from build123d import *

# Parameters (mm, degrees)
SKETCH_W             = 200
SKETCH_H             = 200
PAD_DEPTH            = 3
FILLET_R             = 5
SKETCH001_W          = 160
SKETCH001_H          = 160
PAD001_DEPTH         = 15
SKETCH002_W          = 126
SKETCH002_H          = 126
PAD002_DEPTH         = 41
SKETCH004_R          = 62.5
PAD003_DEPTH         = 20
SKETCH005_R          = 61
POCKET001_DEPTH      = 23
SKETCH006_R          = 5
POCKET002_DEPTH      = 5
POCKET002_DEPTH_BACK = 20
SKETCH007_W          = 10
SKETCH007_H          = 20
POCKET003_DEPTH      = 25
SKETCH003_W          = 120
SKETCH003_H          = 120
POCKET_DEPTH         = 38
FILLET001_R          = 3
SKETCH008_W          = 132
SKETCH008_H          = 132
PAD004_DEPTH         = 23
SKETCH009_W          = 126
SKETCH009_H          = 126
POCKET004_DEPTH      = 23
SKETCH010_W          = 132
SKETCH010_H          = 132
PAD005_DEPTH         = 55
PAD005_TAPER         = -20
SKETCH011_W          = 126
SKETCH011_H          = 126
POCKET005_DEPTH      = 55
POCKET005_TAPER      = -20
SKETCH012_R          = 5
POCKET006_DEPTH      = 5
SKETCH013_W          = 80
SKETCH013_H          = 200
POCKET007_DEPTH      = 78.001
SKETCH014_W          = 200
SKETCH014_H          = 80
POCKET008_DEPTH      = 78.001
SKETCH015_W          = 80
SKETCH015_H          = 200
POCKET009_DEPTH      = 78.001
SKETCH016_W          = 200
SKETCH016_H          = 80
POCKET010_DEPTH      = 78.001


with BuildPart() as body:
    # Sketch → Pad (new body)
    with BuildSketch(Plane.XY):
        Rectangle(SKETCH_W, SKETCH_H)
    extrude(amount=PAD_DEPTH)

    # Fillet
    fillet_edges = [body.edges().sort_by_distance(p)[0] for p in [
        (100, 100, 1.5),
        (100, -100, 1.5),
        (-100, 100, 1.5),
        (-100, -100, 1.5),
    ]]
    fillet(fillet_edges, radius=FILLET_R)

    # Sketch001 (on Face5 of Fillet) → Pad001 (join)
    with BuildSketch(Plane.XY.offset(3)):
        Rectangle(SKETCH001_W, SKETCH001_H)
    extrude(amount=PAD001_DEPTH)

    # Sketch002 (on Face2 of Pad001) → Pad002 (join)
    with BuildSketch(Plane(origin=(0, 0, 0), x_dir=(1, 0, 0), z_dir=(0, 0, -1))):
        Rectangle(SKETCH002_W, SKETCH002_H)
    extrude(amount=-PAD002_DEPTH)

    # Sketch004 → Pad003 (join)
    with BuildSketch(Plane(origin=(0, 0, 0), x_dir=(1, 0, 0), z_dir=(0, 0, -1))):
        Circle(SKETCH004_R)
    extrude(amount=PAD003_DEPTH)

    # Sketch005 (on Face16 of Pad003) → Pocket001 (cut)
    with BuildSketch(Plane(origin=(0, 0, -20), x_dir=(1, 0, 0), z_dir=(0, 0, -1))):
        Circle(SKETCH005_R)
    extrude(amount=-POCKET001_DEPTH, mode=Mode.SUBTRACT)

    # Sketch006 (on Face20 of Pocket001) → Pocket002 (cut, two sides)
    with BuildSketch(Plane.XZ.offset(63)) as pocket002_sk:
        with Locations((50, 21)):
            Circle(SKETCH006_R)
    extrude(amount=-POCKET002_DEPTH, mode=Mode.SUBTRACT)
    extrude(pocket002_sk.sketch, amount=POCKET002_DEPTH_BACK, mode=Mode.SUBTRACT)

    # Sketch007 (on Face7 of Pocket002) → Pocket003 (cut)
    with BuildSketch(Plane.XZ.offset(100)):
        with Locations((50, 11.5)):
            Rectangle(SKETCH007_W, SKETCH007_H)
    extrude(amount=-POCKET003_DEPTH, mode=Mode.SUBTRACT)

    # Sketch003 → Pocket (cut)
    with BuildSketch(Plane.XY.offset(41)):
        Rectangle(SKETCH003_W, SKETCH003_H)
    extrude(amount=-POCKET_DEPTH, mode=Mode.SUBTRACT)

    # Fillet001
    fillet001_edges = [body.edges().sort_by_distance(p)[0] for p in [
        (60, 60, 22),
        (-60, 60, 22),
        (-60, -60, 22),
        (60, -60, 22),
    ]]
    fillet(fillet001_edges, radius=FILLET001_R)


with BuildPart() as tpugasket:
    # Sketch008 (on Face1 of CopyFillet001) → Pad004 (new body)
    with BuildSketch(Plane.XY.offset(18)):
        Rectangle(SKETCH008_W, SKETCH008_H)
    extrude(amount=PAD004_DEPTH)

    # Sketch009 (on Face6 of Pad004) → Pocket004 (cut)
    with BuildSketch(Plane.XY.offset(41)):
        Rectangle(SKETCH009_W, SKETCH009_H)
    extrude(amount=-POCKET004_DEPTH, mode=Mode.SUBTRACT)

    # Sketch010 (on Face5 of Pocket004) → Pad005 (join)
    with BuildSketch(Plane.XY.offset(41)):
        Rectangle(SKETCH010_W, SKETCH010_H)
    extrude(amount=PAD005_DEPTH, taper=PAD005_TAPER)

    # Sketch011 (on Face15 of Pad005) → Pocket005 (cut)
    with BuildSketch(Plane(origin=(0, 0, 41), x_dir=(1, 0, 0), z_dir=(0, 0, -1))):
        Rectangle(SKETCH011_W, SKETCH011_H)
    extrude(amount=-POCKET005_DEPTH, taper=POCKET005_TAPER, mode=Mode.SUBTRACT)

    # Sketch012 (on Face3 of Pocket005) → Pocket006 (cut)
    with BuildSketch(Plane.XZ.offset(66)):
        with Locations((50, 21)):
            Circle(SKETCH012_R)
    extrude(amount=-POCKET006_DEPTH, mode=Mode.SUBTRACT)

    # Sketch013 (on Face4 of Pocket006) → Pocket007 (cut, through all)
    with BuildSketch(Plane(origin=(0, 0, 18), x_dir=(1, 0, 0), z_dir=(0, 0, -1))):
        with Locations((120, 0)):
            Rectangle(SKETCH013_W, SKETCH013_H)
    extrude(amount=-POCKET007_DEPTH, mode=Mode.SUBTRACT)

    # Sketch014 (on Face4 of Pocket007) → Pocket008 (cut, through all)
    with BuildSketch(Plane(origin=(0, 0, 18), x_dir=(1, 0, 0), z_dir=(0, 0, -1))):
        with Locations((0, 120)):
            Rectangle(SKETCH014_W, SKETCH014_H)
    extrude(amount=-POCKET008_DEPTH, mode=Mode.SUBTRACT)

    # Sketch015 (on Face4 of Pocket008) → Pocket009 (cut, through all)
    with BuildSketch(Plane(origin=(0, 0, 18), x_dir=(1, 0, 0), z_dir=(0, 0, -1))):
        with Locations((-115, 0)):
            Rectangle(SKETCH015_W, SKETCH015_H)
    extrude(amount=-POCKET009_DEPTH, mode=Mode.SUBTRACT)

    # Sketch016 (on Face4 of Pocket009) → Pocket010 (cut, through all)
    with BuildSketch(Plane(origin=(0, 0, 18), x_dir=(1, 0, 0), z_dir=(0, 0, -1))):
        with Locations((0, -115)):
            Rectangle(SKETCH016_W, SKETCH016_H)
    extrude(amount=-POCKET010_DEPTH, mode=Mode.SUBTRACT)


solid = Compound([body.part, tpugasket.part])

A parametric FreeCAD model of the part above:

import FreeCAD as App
import Part
import Sketcher

V = App.Vector
Q = App.Units.Quantity


def edges_at(feature, points):
    """Names of the edges that pass closest to the given points."""
    edges = feature.Shape.Edges
    near = lambda p: min(range(len(edges)), key=lambda i: edges[i].distToShape(Part.Vertex(*p))[0])
    return sorted({f"Edge{near(p) + 1}" for p in points})


def add_polygon(sketch, points):
    """Adds a closed chain of lines whose ends are joined by coincident constraints."""
    first, n = sketch.GeometryCount, len(points)
    for a, b in zip(points, points[1:] + points[:1]):
        sketch.addGeometry(Part.LineSegment(App.Vector(*a, 0), App.Vector(*b, 0)), False)
    for i in range(n):
        sketch.addConstraint(Sketcher.Constraint("Coincident", first + i, 2, first + (i + 1) % n, 1))

doc = App.newDocument("Part")
body = doc.addObject("PartDesign::Body", "Body")

sketch1 = body.newObject("Sketcher::SketchObject", "Sketch")
sketch1.AttachmentSupport = (doc.getObject("XY_Plane"), [""])
sketch1.MapMode = "FlatFace"
add_polygon(sketch1, [(-100, 100), (-100, -100), (100, -100), (100, 100)])
sketch1.addConstraint(Sketcher.Constraint("Vertical", 0))
sketch1.addConstraint(Sketcher.Constraint("Horizontal", 1))
sketch1.addConstraint(Sketcher.Constraint("Vertical", 2))
sketch1.addConstraint(Sketcher.Constraint("Horizontal", 3))
sketch1.addConstraint(Sketcher.Constraint("Symmetric", 0, 2, 2, 2, -1, 1))
sketch1.addConstraint(Sketcher.Constraint("Equal", 3, 0))
sketch1.addConstraint(Sketcher.Constraint("DistanceX", 1, 1, 1, 2, Q("200 mm")))
pad1 = body.newObject("PartDesign::Pad", "Pad")
pad1.Profile = sketch1
pad1.Length = 3
doc.recompute()

fillet = body.newObject("PartDesign::Fillet", "Fillet")
fillet.Base = (pad1, edges_at(pad1, [
    (100, 100, 1.5),
    (100, -100, 1.5),
    (-100, 100, 1.5),
    (-100, -100, 1.5),
]))
fillet.Radius = 5

sketch2 = body.newObject("Sketcher::SketchObject", "Sketch001")
sketch2.AttachmentSupport = (doc.getObject("XY_Plane"), [""])
sketch2.MapMode = "FlatFace"
sketch2.AttachmentOffset = App.Placement(V(0, 0, 3), App.Rotation())
add_polygon(sketch2, [(-80, 80), (-80, -80), (80, -80), (80, 80)])
sketch2.addConstraint(Sketcher.Constraint("Vertical", 0))
sketch2.addConstraint(Sketcher.Constraint("Horizontal", 1))
sketch2.addConstraint(Sketcher.Constraint("Vertical", 2))
sketch2.addConstraint(Sketcher.Constraint("Horizontal", 3))
sketch2.addConstraint(Sketcher.Constraint("Symmetric", 0, 2, 2, 2, -1, 1))
sketch2.addConstraint(Sketcher.Constraint("Equal", 3, 0))
sketch2.addConstraint(Sketcher.Constraint("DistanceX", 1, 1, 1, 2, Q("160 mm")))
pad2 = body.newObject("PartDesign::Pad", "Pad001")
pad2.Profile = sketch2
pad2.Length = 15

sketch3 = body.newObject("Sketcher::SketchObject", "Sketch002")
sketch3.AttachmentSupport = (doc.getObject("XY_Plane"), [""])
sketch3.MapMode = "FlatFace"
add_polygon(sketch3, [(-63, -63), (-63, 63), (63, 63), (63, -63)])
sketch3.addConstraint(Sketcher.Constraint("Vertical", 0))
sketch3.addConstraint(Sketcher.Constraint("Horizontal", 1))
sketch3.addConstraint(Sketcher.Constraint("Vertical", 2))
sketch3.addConstraint(Sketcher.Constraint("Horizontal", 3))
sketch3.addConstraint(Sketcher.Constraint("Symmetric", 0, 2, 2, 2, -1, 1))
sketch3.addConstraint(Sketcher.Constraint("Equal", 3, 0))
sketch3.addConstraint(Sketcher.Constraint("DistanceX", 1, 1, 1, 2, Q("126 mm")))
pad3 = body.newObject("PartDesign::Pad", "Pad002")
pad3.Profile = sketch3
pad3.Length = 41

sketch4 = body.newObject("Sketcher::SketchObject", "Sketch003")
sketch4.AttachmentSupport = (doc.getObject("XY_Plane"), [""])
sketch4.MapMode = "FlatFace"
sketch4.addGeometry(Part.Circle(V(0, 0, 0), V(0, 0, 1), 62), False)
sketch4.addConstraint(Sketcher.Constraint("Coincident", 0, 3, -1, 1))
sketch4.addConstraint(Sketcher.Constraint("Diameter", 0, Q("125 mm")))
pad4 = body.newObject("PartDesign::Pad", "Pad003")
pad4.Profile = sketch4
pad4.Length = 20
pad4.Reversed = True

sketch5 = body.newObject("Sketcher::SketchObject", "Sketch004")
sketch5.AttachmentSupport = (doc.getObject("XY_Plane"), [""])
sketch5.MapMode = "FlatFace"
sketch5.AttachmentOffset = App.Placement(V(0, 0, -20), App.Rotation())
sketch5.addGeometry(Part.Circle(V(0, 0, 0), V(0, 0, 1), 61), False)
sketch5.addConstraint(Sketcher.Constraint("Coincident", 0, 3, -1, 1))
sketch5.addConstraint(Sketcher.Constraint("Diameter", 0, Q("122 mm")))
pocket1 = body.newObject("PartDesign::Pocket", "Pocket")
pocket1.Profile = sketch5
pocket1.Length = 23
pocket1.Reversed = True

sketch6 = body.newObject("Sketcher::SketchObject", "Sketch005")
sketch6.AttachmentSupport = (doc.getObject("XZ_Plane"), [""])
sketch6.MapMode = "FlatFace"
sketch6.AttachmentOffset = App.Placement(V(0, 0, 63), App.Rotation())
sketch6.addGeometry(Part.Circle(V(50, 21, 0), V(0, 0, 1), 5), False)
sketch6.addConstraint(Sketcher.Constraint("Diameter", 0, Q("10 mm")))
sketch6.addConstraint(Sketcher.Constraint("DistanceX", -1, 1, 0, 3, Q("50 mm")))
sketch6.addConstraint(Sketcher.Constraint("DistanceY", -1, 1, 0, 3, Q("21 mm")))
pocket2 = body.newObject("PartDesign::Pocket", "Pocket001")
pocket2.Profile = sketch6
pocket2.Type = "TwoLengths"
pocket2.Length = 5
pocket2.Length2 = 20

sketch7 = body.newObject("Sketcher::SketchObject", "Sketch006")
sketch7.AttachmentSupport = (doc.getObject("XZ_Plane"), [""])
sketch7.MapMode = "FlatFace"
sketch7.AttachmentOffset = App.Placement(V(0, 0, 100), App.Rotation())
add_polygon(sketch7, [(45, 22), (45, 2), (55, 2), (55, 22)])
sketch7.addConstraint(Sketcher.Constraint("Vertical", 0))
sketch7.addConstraint(Sketcher.Constraint("Horizontal", 1))
sketch7.addConstraint(Sketcher.Constraint("Vertical", 2))
sketch7.addConstraint(Sketcher.Constraint("Horizontal", 3))
sketch7.addConstraint(Sketcher.Constraint("DistanceX", 1, 1, 1, 2, Q("10 mm")))
sketch7.addConstraint(Sketcher.Constraint("DistanceY", 0, 2, 0, 1, Q("20 mm")))
sketch7.addConstraint(Sketcher.Constraint("DistanceX", -1, 1, 0, 2, Q("45 mm")))
sketch7.addConstraint(Sketcher.Constraint("DistanceY", -1, 1, 0, 2, Q("1.5 mm")))
pocket3 = body.newObject("PartDesign::Pocket", "Pocket002")
pocket3.Profile = sketch7
pocket3.Length = 25

sketch8 = body.newObject("Sketcher::SketchObject", "Sketch007")
sketch8.AttachmentSupport = (doc.getObject("XY_Plane"), [""])
sketch8.MapMode = "FlatFace"
sketch8.AttachmentOffset = App.Placement(V(0, 0, 41), App.Rotation())
add_polygon(sketch8, [(-60, 60), (-60, -60), (60, -60), (60, 60)])
sketch8.addConstraint(Sketcher.Constraint("Vertical", 0))
sketch8.addConstraint(Sketcher.Constraint("Horizontal", 1))
sketch8.addConstraint(Sketcher.Constraint("Vertical", 2))
sketch8.addConstraint(Sketcher.Constraint("Horizontal", 3))
sketch8.addConstraint(Sketcher.Constraint("Symmetric", 0, 2, 2, 2, -1, 1))
sketch8.addConstraint(Sketcher.Constraint("Equal", 3, 0))
sketch8.addConstraint(Sketcher.Constraint("DistanceX", 1, 1, 1, 2, Q("120 mm")))
pocket4 = body.newObject("PartDesign::Pocket", "Pocket003")
pocket4.Profile = sketch8
pocket4.Length = 38
doc.recompute()

fillet2 = body.newObject("PartDesign::Fillet", "Fillet001")
fillet2.Base = (pocket4, edges_at(pocket4, [
    (60, 60, 22),
    (-60, 60, 22),
    (-60, -60, 22),
    (60, -60, 22),
]))
fillet2.Radius = 3
body2 = doc.addObject("PartDesign::Body", "Body001")

sketch9 = body2.newObject("Sketcher::SketchObject", "Sketch008")
sketch9.AttachmentSupport = (doc.getObject("XY_Plane001"), [""])
sketch9.MapMode = "FlatFace"
sketch9.AttachmentOffset = App.Placement(V(0, 0, 18), App.Rotation())
add_polygon(sketch9, [(-66, 66), (-66, -66), (66, -66), (66, 66)])
sketch9.addConstraint(Sketcher.Constraint("Vertical", 0))
sketch9.addConstraint(Sketcher.Constraint("Horizontal", 1))
sketch9.addConstraint(Sketcher.Constraint("Vertical", 2))
sketch9.addConstraint(Sketcher.Constraint("Horizontal", 3))
sketch9.addConstraint(Sketcher.Constraint("Symmetric", 0, 2, 2, 2, -1, 1))
sketch9.addConstraint(Sketcher.Constraint("Equal", 3, 0))
sketch9.addConstraint(Sketcher.Constraint("DistanceX", 1, 1, 1, 2, Q("132 mm")))
pad5 = body2.newObject("PartDesign::Pad", "Pad004")
pad5.Profile = sketch9
pad5.Length = 23

sketch10 = body2.newObject("Sketcher::SketchObject", "Sketch009")
sketch10.AttachmentSupport = (doc.getObject("XY_Plane001"), [""])
sketch10.MapMode = "FlatFace"
sketch10.AttachmentOffset = App.Placement(V(0, 0, 41), App.Rotation())
add_polygon(sketch10, [(-63, 63), (-63, -63), (63, -63), (63, 63)])
sketch10.addConstraint(Sketcher.Constraint("Vertical", 0))
sketch10.addConstraint(Sketcher.Constraint("Horizontal", 1))
sketch10.addConstraint(Sketcher.Constraint("Vertical", 2))
sketch10.addConstraint(Sketcher.Constraint("Horizontal", 3))
sketch10.addConstraint(Sketcher.Constraint("Symmetric", 0, 2, 2, 2, -1, 1))
sketch10.addConstraint(Sketcher.Constraint("Equal", 3, 0))
sketch10.addConstraint(Sketcher.Constraint("DistanceX", 1, 1, 1, 2, Q("126 mm")))
pocket5 = body2.newObject("PartDesign::Pocket", "Pocket004")
pocket5.Profile = sketch10
pocket5.Length = 23

sketch11 = body2.newObject("Sketcher::SketchObject", "Sketch010")
sketch11.AttachmentSupport = (doc.getObject("XY_Plane001"), [""])
sketch11.MapMode = "FlatFace"
sketch11.AttachmentOffset = App.Placement(V(0, 0, 41), App.Rotation())
add_polygon(sketch11, [(-66, 66), (-66, -66), (66, -66), (66, 66)])
sketch11.addConstraint(Sketcher.Constraint("Vertical", 0))
sketch11.addConstraint(Sketcher.Constraint("Horizontal", 1))
sketch11.addConstraint(Sketcher.Constraint("Vertical", 2))
sketch11.addConstraint(Sketcher.Constraint("Horizontal", 3))
sketch11.addConstraint(Sketcher.Constraint("Symmetric", 0, 2, 2, 2, -1, 1))
sketch11.addConstraint(Sketcher.Constraint("Equal", 3, 0))
sketch11.addConstraint(Sketcher.Constraint("DistanceX", 1, 1, 1, 2, Q("132 mm")))
pad6 = body2.newObject("PartDesign::Pad", "Pad005")
pad6.Profile = sketch11
pad6.Length = 55
pad6.TaperAngle = 20

sketch12 = body2.newObject("Sketcher::SketchObject", "Sketch011")
sketch12.AttachmentSupport = (doc.getObject("XY_Plane001"), [""])
sketch12.MapMode = "FlatFace"
sketch12.AttachmentOffset = App.Placement(V(0, 0, 41), App.Rotation())
add_polygon(sketch12, [(-63, -63), (-63, 63), (63, 63), (63, -63)])
sketch12.addConstraint(Sketcher.Constraint("Vertical", 0))
sketch12.addConstraint(Sketcher.Constraint("Horizontal", 1))
sketch12.addConstraint(Sketcher.Constraint("Vertical", 2))
sketch12.addConstraint(Sketcher.Constraint("Horizontal", 3))
sketch12.addConstraint(Sketcher.Constraint("Symmetric", 0, 2, 2, 2, -1, 1))
sketch12.addConstraint(Sketcher.Constraint("Equal", 3, 0))
sketch12.addConstraint(Sketcher.Constraint("DistanceX", 1, 1, 1, 2, Q("126 mm")))
pocket6 = body2.newObject("PartDesign::Pocket", "Pocket005")
pocket6.Profile = sketch12
pocket6.Length = 55
pocket6.Reversed = True
pocket6.TaperAngle = 20

sketch13 = body2.newObject("Sketcher::SketchObject", "Sketch012")
sketch13.AttachmentSupport = (doc.getObject("XZ_Plane001"), [""])
sketch13.MapMode = "FlatFace"
sketch13.AttachmentOffset = App.Placement(V(0, 0, 66), App.Rotation())
sketch13.addGeometry(Part.Circle(V(50, 21, 0), V(0, 0, 1), 5), False)
sketch13.addConstraint(Sketcher.Constraint("Diameter", 0, Q("10 mm")))
sketch13.addConstraint(Sketcher.Constraint("DistanceX", -1, 1, 0, 3, Q("50 mm")))
sketch13.addConstraint(Sketcher.Constraint("DistanceY", -1, 1, 0, 3, Q("21 mm")))
pocket7 = body2.newObject("PartDesign::Pocket", "Pocket006")
pocket7.Profile = sketch13
pocket7.Length = 5

sketch14 = body2.newObject("Sketcher::SketchObject", "Sketch013")
sketch14.AttachmentSupport = (doc.getObject("XY_Plane001"), [""])
sketch14.MapMode = "FlatFace"
sketch14.AttachmentOffset = App.Placement(V(0, 0, 18), App.Rotation())
add_polygon(sketch14, [(80, -100), (80, 100), (160, 100), (160, -100)])
sketch14.addConstraint(Sketcher.Constraint("Vertical", 0))
sketch14.addConstraint(Sketcher.Constraint("Horizontal", 1))
sketch14.addConstraint(Sketcher.Constraint("Vertical", 2))
sketch14.addConstraint(Sketcher.Constraint("Horizontal", 3))
sketch14.addConstraint(Sketcher.Constraint("DistanceX", 1, 1, 1, 2, Q("80 mm")))
sketch14.addConstraint(Sketcher.Constraint("DistanceY", 0, 1, 0, 2, Q("200 mm")))
sketch14.addConstraint(Sketcher.Constraint("DistanceX", -1, 1, 0, 2, Q("80 mm")))
sketch14.addConstraint(Sketcher.Constraint("DistanceY", -1, 1, 0, 2, Q("100 mm")))
pocket8 = body2.newObject("PartDesign::Pocket", "Pocket007")
pocket8.Profile = sketch14
pocket8.Type = "ThroughAll"
pocket8.Reversed = True

sketch15 = body2.newObject("Sketcher::SketchObject", "Sketch014")
sketch15.AttachmentSupport = (doc.getObject("XY_Plane001"), [""])
sketch15.MapMode = "FlatFace"
sketch15.AttachmentOffset = App.Placement(V(0, 0, 18), App.Rotation())
add_polygon(sketch15, [(-100, -160), (-100, -80), (100, -80), (100, -160)])
sketch15.addConstraint(Sketcher.Constraint("Vertical", 0))
sketch15.addConstraint(Sketcher.Constraint("Horizontal", 1))
sketch15.addConstraint(Sketcher.Constraint("Vertical", 2))
sketch15.addConstraint(Sketcher.Constraint("Horizontal", 3))
sketch15.addConstraint(Sketcher.Constraint("DistanceX", 1, 1, 1, 2, Q("200 mm")))
sketch15.addConstraint(Sketcher.Constraint("DistanceY", 0, 1, 0, 2, Q("80 mm")))
sketch15.addConstraint(Sketcher.Constraint("DistanceX", 0, 2, -1, 1, Q("100 mm")))
sketch15.addConstraint(Sketcher.Constraint("DistanceY", 0, 2, -1, 1, Q("80 mm")))
pocket9 = body2.newObject("PartDesign::Pocket", "Pocket008")
pocket9.Profile = sketch15
pocket9.Type = "ThroughAll"
pocket9.Reversed = True

sketch16 = body2.newObject("Sketcher::SketchObject", "Sketch015")
sketch16.AttachmentSupport = (doc.getObject("XY_Plane001"), [""])
sketch16.MapMode = "FlatFace"
sketch16.AttachmentOffset = App.Placement(V(0, 0, 18), App.Rotation())
add_polygon(sketch16, [(-155, -100), (-155, 100), (-75, 100), (-75, -100)])
sketch16.addConstraint(Sketcher.Constraint("Vertical", 0))
sketch16.addConstraint(Sketcher.Constraint("Horizontal", 1))
sketch16.addConstraint(Sketcher.Constraint("Vertical", 2))
sketch16.addConstraint(Sketcher.Constraint("Horizontal", 3))
sketch16.addConstraint(Sketcher.Constraint("DistanceX", 1, 1, 1, 2, Q("80 mm")))
sketch16.addConstraint(Sketcher.Constraint("DistanceY", 0, 1, 0, 2, Q("200 mm")))
sketch16.addConstraint(Sketcher.Constraint("DistanceX", 0, 2, -1, 1, Q("155 mm")))
sketch16.addConstraint(Sketcher.Constraint("DistanceY", -1, 1, 0, 2, Q("100 mm")))
pocket10 = body2.newObject("PartDesign::Pocket", "Pocket009")
pocket10.Profile = sketch16
pocket10.Type = "ThroughAll"
pocket10.Reversed = True

sketch17 = body2.newObject("Sketcher::SketchObject", "Sketch016")
sketch17.AttachmentSupport = (doc.getObject("XY_Plane001"), [""])
sketch17.MapMode = "FlatFace"
sketch17.AttachmentOffset = App.Placement(V(0, 0, 18), App.Rotation())
add_polygon(sketch17, [(-100, 75), (-100, 155), (100, 155), (100, 75)])
sketch17.addConstraint(Sketcher.Constraint("Vertical", 0))
sketch17.addConstraint(Sketcher.Constraint("Horizontal", 1))
sketch17.addConstraint(Sketcher.Constraint("Vertical", 2))
sketch17.addConstraint(Sketcher.Constraint("Horizontal", 3))
sketch17.addConstraint(Sketcher.Constraint("DistanceX", 1, 1, 1, 2, Q("200 mm")))
sketch17.addConstraint(Sketcher.Constraint("DistanceY", 0, 1, 0, 2, Q("80 mm")))
sketch17.addConstraint(Sketcher.Constraint("DistanceX", 0, 2, -1, 1, Q("100 mm")))
sketch17.addConstraint(Sketcher.Constraint("DistanceY", -1, 1, 0, 2, Q("155 mm")))
pocket11 = body2.newObject("PartDesign::Pocket", "Pocket010")
pocket11.Profile = sketch17
pocket11.Type = "ThroughAll"
pocket11.Reversed = True

doc.recompute()
